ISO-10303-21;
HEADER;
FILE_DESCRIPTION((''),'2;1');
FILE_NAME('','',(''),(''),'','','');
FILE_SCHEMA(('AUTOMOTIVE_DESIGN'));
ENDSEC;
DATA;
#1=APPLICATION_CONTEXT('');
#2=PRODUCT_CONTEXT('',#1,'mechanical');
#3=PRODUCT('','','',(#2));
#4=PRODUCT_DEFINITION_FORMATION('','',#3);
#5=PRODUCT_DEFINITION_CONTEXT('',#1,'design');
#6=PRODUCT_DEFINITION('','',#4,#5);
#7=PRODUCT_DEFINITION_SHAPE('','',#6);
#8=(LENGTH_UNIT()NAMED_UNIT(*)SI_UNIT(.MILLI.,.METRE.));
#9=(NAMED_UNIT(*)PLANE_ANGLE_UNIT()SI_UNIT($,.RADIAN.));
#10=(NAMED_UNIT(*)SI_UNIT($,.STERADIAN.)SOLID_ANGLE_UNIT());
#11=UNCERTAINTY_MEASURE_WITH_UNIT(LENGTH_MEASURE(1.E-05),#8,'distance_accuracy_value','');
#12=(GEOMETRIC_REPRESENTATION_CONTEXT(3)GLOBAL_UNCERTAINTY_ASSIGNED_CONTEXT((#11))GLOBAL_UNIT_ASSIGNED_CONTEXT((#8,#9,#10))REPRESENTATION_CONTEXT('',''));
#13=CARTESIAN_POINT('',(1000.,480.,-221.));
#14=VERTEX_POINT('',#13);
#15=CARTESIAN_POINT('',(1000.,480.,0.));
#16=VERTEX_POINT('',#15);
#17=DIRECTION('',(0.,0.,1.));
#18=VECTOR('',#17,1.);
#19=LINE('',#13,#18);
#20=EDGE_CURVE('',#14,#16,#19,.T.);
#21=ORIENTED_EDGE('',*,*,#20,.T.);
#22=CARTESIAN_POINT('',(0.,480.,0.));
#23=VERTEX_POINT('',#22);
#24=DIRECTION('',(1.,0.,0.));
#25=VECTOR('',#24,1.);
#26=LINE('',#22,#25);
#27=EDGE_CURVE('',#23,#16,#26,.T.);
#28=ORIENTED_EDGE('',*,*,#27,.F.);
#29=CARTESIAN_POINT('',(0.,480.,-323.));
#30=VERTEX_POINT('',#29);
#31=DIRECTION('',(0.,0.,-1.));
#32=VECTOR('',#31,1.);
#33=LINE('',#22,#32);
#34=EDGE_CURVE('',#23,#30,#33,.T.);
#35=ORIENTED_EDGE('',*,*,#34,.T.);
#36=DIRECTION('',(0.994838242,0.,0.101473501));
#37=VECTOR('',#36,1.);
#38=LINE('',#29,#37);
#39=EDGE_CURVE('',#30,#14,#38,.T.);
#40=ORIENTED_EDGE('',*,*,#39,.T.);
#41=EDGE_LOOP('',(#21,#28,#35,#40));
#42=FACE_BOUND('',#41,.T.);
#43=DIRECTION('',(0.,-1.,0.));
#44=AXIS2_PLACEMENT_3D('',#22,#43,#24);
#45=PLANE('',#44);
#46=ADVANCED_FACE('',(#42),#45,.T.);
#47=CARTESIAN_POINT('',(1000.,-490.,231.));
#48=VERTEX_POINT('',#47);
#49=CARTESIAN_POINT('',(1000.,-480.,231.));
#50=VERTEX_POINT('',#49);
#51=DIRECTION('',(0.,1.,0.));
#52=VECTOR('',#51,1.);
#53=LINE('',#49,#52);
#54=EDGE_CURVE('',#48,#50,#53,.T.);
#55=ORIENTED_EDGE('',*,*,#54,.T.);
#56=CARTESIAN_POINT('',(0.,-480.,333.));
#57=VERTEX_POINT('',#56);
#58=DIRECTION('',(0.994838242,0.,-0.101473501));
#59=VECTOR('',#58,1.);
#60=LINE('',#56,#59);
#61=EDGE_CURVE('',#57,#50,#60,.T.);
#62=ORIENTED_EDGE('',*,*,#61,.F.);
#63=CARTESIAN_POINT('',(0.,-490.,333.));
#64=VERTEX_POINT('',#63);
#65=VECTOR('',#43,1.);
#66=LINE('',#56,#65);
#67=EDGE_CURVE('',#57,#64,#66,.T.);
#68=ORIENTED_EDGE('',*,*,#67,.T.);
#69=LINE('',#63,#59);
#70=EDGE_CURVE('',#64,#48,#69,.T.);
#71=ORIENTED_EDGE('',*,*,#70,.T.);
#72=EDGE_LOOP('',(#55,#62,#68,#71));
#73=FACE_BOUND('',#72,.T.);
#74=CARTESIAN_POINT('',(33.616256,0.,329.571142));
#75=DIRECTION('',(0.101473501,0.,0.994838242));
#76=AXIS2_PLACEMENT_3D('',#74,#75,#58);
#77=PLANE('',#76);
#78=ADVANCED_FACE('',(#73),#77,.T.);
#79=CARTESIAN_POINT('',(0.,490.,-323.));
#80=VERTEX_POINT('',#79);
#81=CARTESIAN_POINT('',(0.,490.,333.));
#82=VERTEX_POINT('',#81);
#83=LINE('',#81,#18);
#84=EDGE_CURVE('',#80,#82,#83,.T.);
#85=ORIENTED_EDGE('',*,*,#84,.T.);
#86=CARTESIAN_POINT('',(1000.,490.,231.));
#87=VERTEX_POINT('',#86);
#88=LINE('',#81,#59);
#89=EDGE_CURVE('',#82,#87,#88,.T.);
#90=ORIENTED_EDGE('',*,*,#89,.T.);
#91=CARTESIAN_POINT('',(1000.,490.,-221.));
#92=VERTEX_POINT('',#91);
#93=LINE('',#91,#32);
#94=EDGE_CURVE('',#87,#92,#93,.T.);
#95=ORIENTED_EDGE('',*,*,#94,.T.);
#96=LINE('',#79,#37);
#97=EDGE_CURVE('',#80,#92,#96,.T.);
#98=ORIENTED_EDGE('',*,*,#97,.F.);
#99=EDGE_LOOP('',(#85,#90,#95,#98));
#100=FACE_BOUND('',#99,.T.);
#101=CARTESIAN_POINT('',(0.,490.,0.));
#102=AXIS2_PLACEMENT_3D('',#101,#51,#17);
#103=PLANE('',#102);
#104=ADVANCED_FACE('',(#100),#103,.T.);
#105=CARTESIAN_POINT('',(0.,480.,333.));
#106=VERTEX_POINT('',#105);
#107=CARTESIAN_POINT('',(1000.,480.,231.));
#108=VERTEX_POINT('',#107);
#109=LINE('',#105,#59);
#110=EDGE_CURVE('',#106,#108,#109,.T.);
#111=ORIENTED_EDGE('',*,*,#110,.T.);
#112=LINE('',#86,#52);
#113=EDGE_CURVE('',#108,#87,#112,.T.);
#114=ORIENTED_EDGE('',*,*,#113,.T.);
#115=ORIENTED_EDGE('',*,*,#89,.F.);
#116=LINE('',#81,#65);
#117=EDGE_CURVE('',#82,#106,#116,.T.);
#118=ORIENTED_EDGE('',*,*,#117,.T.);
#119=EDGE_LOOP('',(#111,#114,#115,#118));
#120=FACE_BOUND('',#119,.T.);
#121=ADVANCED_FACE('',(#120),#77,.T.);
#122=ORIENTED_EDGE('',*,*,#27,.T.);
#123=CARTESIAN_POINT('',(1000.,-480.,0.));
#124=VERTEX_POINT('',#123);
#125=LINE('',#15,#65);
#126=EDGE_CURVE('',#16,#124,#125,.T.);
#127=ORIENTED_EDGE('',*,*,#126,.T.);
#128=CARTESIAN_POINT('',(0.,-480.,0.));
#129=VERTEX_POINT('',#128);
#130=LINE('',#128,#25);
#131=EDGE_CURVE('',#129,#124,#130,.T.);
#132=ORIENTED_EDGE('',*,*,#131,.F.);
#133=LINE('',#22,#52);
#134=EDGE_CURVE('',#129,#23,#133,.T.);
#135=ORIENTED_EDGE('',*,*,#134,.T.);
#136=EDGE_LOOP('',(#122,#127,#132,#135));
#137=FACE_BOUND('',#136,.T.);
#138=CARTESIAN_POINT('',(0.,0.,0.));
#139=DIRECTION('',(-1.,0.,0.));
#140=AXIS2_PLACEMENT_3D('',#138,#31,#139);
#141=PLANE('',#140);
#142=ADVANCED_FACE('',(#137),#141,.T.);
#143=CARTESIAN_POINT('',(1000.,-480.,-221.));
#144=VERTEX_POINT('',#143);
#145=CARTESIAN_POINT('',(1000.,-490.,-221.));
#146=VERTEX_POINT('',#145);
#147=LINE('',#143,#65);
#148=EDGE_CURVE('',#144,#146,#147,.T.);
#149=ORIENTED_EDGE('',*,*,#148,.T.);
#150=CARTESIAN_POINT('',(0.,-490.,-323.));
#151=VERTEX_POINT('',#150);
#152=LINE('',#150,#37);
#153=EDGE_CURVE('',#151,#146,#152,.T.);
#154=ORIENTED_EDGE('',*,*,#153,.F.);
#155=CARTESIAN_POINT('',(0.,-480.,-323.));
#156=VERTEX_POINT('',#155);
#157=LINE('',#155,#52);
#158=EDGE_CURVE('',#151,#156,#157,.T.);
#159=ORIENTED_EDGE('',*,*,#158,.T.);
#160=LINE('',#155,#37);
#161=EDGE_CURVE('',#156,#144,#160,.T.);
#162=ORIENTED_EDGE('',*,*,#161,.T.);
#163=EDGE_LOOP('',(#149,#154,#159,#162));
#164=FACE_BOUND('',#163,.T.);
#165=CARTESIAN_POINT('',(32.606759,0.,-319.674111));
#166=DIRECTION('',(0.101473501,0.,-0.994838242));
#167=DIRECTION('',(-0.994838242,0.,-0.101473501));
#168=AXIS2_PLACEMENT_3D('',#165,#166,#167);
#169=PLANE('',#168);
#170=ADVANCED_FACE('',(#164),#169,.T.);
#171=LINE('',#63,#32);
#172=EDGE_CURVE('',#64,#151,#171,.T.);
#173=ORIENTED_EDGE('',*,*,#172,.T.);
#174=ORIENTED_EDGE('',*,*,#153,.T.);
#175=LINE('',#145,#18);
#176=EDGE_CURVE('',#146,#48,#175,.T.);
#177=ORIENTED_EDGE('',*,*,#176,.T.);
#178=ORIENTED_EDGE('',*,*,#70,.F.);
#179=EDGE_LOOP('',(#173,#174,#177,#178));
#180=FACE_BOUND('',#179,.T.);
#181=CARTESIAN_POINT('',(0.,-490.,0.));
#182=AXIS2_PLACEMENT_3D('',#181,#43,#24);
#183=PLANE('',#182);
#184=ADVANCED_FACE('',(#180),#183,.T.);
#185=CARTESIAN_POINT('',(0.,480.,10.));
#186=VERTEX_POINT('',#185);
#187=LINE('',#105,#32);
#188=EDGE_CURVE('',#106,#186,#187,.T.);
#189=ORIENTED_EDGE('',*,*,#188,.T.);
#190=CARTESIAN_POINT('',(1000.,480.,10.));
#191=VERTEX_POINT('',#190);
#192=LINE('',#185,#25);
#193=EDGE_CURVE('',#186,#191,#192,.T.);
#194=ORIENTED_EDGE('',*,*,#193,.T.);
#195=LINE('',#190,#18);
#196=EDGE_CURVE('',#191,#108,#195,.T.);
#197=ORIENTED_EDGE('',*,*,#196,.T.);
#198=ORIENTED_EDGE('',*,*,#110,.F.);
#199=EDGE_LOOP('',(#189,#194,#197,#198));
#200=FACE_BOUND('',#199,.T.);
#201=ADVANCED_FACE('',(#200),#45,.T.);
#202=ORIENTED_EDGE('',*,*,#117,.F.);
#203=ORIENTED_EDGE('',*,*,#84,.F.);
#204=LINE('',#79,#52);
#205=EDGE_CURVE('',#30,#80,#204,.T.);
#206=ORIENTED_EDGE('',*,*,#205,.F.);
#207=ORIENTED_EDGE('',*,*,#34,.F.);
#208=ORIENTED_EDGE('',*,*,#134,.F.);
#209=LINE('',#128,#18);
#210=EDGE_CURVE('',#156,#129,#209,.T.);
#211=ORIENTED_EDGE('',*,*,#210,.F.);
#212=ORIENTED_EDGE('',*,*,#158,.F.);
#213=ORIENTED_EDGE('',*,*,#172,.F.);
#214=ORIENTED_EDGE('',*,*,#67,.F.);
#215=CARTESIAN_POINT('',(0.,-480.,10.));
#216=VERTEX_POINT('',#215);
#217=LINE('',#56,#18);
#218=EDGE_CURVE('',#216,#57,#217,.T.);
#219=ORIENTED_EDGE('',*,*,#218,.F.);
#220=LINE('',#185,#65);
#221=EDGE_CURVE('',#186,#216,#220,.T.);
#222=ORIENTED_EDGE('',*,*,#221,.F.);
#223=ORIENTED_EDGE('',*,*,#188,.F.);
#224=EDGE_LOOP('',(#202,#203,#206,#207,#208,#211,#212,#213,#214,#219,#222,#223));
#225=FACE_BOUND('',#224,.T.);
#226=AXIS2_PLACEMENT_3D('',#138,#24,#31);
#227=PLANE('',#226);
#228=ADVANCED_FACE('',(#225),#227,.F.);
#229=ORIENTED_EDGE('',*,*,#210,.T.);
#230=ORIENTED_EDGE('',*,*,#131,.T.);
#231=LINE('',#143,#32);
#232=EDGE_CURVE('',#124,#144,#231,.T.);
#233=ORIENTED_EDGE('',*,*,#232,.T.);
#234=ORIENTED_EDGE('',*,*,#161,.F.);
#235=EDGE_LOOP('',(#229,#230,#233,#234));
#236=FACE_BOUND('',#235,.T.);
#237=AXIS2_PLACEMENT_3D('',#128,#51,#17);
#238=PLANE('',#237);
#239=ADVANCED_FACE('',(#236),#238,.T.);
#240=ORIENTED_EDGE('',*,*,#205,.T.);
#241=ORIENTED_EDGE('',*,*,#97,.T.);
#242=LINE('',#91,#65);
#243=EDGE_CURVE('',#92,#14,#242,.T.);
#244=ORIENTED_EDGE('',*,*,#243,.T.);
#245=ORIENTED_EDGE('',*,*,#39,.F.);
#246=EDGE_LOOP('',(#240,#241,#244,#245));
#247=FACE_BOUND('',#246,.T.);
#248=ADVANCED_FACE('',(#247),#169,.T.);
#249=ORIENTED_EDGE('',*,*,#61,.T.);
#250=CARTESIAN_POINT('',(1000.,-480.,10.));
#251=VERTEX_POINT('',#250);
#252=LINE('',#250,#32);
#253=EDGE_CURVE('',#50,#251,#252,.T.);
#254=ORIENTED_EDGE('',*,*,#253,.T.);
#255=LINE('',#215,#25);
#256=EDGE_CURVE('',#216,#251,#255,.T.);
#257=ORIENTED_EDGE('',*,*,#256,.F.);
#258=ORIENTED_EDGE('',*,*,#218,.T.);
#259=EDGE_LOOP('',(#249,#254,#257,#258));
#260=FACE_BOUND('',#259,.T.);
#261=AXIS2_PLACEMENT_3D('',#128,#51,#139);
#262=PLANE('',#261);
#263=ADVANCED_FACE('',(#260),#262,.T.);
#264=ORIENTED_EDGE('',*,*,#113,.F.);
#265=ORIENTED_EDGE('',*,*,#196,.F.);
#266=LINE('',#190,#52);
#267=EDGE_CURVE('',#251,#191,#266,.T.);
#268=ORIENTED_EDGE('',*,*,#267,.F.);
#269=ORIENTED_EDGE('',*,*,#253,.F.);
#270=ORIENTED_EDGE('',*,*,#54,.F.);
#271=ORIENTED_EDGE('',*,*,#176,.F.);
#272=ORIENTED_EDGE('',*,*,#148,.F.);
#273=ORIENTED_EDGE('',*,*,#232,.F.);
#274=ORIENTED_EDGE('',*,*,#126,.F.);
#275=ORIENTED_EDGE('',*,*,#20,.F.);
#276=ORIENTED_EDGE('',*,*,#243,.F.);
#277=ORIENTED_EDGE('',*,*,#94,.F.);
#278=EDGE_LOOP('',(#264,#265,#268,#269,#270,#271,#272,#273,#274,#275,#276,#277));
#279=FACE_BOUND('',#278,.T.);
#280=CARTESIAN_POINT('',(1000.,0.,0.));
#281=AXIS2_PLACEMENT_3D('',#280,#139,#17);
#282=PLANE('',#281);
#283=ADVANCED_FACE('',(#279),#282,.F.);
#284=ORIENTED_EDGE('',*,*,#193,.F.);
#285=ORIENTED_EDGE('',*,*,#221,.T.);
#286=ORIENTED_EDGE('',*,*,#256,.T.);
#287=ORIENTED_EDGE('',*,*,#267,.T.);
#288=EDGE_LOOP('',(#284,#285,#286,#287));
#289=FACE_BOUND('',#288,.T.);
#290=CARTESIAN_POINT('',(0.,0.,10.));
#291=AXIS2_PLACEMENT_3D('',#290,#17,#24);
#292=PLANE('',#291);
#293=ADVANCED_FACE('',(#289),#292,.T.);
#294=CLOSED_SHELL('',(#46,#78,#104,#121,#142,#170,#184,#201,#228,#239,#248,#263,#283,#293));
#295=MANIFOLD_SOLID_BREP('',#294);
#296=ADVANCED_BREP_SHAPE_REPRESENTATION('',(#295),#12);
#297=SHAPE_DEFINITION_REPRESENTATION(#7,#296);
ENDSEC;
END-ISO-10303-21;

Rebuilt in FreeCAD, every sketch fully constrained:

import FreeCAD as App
import Part
import Sketcher
from FreeCAD import Vector
Q = App.Units.Quantity

doc = App.newDocument("Part")
body = doc.addObject("PartDesign::Body", "Body")

# Sketch on YZ plane
sketch1 = body.newObject("Sketcher::SketchObject", "Sketch")
sketch1.AttachmentSupport = (doc.getObject("YZ_Plane"), [""])
sketch1.MapMode = "FlatFace"
sketch1.addGeometry([
    Part.LineSegment(Vector(490, -323, 0), Vector(490, 333, 0)),  # 0
    Part.LineSegment(Vector(490, 333, 0), Vector(480, 333, 0)),  # 1
    Part.LineSegment(Vector(480, 333, 0), Vector(480, 10, 0)),  # 2
    Part.LineSegment(Vector(480, 10, 0), Vector(-480, 10, 0)),  # 3
    Part.LineSegment(Vector(-480, 10, 0), Vector(-480, 333, 0)),  # 4
    Part.LineSegment(Vector(-480, 333, 0), Vector(-490, 333, 0)),  # 5
    Part.LineSegment(Vector(-490, 333, 0), Vector(-490, -323, 0)),  # 6
    Part.LineSegment(Vector(-490, -323, 0), Vector(-480, -323, 0)),  # 7
    Part.LineSegment(Vector(-480, -323, 0), Vector(-480, 0, 0)),  # 8
    Part.LineSegment(Vector(-480, 0, 0), Vector(480, 0, 0)),  # 9
    Part.LineSegment(Vector(480, 0, 0), Vector(480, -323, 0)),  # 10
    Part.LineSegment(Vector(480, -323, 0), Vector(490, -323, 0)),  # 11
], False)
sketch1.addConstraint([
    Sketcher.Constraint("Coincident", 0, 2, 1, 1),
    Sketcher.Constraint("Coincident", 1, 2, 2, 1),
    Sketcher.Constraint("Coincident", 2, 2, 3, 1),
    Sketcher.Constraint("Coincident", 3, 2, 4, 1),
    Sketcher.Constraint("Coincident", 4, 2, 5, 1),
    Sketcher.Constraint("Coincident", 5, 2, 6, 1),
    Sketcher.Constraint("Coincident", 6, 2, 7, 1),
    Sketcher.Constraint("Coincident", 7, 2, 8, 1),
    Sketcher.Constraint("Coincident", 8, 2, 9, 1),
    Sketcher.Constraint("Coincident", 9, 2, 10, 1),
    Sketcher.Constraint("Coincident", 10, 2, 11, 1),
    Sketcher.Constraint("Coincident", 11, 2, 0, 1),
    Sketcher.Constraint("Vertical", 0),
    Sketcher.Constraint("Horizontal", 1),
    Sketcher.Constraint("Vertical", 2),
    Sketcher.Constraint("Horizontal", 3),
    Sketcher.Constraint("Vertical", 4),
    Sketcher.Constraint("Horizontal", 5),
    Sketcher.Constraint("Vertical", 6),
    Sketcher.Constraint("Horizontal", 7),
    Sketcher.Constraint("Vertical", 8),
    Sketcher.Constraint("Horizontal", 9),
    Sketcher.Constraint("Vertical", 10),
    Sketcher.Constraint("Horizontal", 11),
    Sketcher.Constraint("Symmetric", 8, 2, 9, 2, -1, 1),
    Sketcher.Constraint("Symmetric", 1, 2, 4, 2, -2),
    Sketcher.Constraint("Symmetric", 6, 2, 11, 2, -2),
    Sketcher.Constraint("Vertical", 4, 2, 7, 2),
    Sketcher.Constraint("Equal", 4, 8),
    Sketcher.Constraint("DistanceX", 1, 2, 1, 1, Q("10 mm")),
    Sketcher.Constraint("DistanceX", 3, 2, 3, 1, Q("960 mm")),
    Sketcher.Constraint("DistanceY", 0, 1, 0, 2, Q("656 mm")),
    Sketcher.Constraint("DistanceY", 2, 2, 2, 1, Q("323 mm")),
])

# Sketch on YZ plane
sketch2 = body.newObject("Sketcher::SketchObject", "Sketch001")
sketch2.AttachmentSupport = (doc.getObject("YZ_Plane"), [""])
sketch2.MapMode = "FlatFace"
sketch2.AttachmentOffset = App.Placement(Vector(0, 0, 1000), App.Rotation())
sketch2.addGeometry([
    Part.LineSegment(Vector(490, 231, 0), Vector(490, -221, 0)),  # 0
    Part.LineSegment(Vector(490, -221, 0), Vector(480, -221, 0)),  # 1
    Part.LineSegment(Vector(480, -221, 0), Vector(480, 0, 0)),  # 2
    Part.LineSegment(Vector(480, 0, 0), Vector(-480, 0, 0)),  # 3
    Part.LineSegment(Vector(-480, 0, 0), Vector(-480, -221, 0)),  # 4
    Part.LineSegment(Vector(-480, -221, 0), Vector(-490, -221, 0)),  # 5
    Part.LineSegment(Vector(-490, -221, 0), Vector(-490, 231, 0)),  # 6
    Part.LineSegment(Vector(-490, 231, 0), Vector(-480, 231, 0)),  # 7
    Part.LineSegment(Vector(-480, 231, 0), Vector(-480, 10, 0)),  # 8
    Part.LineSegment(Vector(-480, 10, 0), Vector(480, 10, 0)),  # 9
    Part.LineSegment(Vector(480, 10, 0), Vector(480, 231, 0)),  # 10
    Part.LineSegment(Vector(480, 231, 0), Vector(490, 231, 0)),  # 11
], False)
sketch2.addConstraint([
    Sketcher.Constraint("Coincident", 0, 2, 1, 1),
    Sketcher.Constraint("Coincident", 1, 2, 2, 1),
    Sketcher.Constraint("Coincident", 2, 2, 3, 1),
    Sketcher.Constraint("Coincident", 3, 2, 4, 1),
    Sketcher.Constraint("Coincident", 4, 2, 5, 1),
    Sketcher.Constraint("Coincident", 5, 2, 6, 1),
    Sketcher.Constraint("Coincident", 6, 2, 7, 1),
    Sketcher.Constraint("Coincident", 7, 2, 8, 1),
    Sketcher.Constraint("Coincident", 8, 2, 9, 1),
    Sketcher.Constraint("Coincident", 9, 2, 10, 1),
    Sketcher.Constraint("Coincident", 10, 2, 11, 1),
    Sketcher.Constraint("Coincident", 11, 2, 0, 1),
    Sketcher.Constraint("Vertical", 0),
    Sketcher.Constraint("Horizontal", 1),
    Sketcher.Constraint("Vertical", 2),
    Sketcher.Constraint("Horizontal", 3),
    Sketcher.Constraint("Vertical", 4),
    Sketcher.Constraint("Horizontal", 5),
    Sketcher.Constraint("Vertical", 6),
    Sketcher.Constraint("Horizontal", 7),
    Sketcher.Constraint("Vertical", 8),
    Sketcher.Constraint("Horizontal", 9),
    Sketcher.Constraint("Vertical", 10),
    Sketcher.Constraint("Horizontal", 11),
    Sketcher.Constraint("Symmetric", 2, 2, 3, 2, -1, 1),
    Sketcher.Constraint("Symmetric", 0, 2, 5, 2, -2),
    Sketcher.Constraint("Symmetric", 7, 2, 10, 2, -2),
    Sketcher.Constraint("Vertical", 4, 2, 7, 2),
    Sketcher.Constraint("Equal", 4, 8),
    Sketcher.Constraint("DistanceX", 1, 2, 1, 1, Q("10 mm")),
    Sketcher.Constraint("DistanceX", 3, 2, 3, 1, Q("960 mm")),
    Sketcher.Constraint("DistanceY", 0, 2, 0, 1, Q("452 mm")),
    Sketcher.Constraint("DistanceY", 2, 1, 2, 2, Q("221 mm")),
])

additiveloft = body.newObject("PartDesign::AdditiveLoft", "AdditiveLoft")
additiveloft.Profile = sketch1
additiveloft.Sections = [sketch2]

doc.recompute()
